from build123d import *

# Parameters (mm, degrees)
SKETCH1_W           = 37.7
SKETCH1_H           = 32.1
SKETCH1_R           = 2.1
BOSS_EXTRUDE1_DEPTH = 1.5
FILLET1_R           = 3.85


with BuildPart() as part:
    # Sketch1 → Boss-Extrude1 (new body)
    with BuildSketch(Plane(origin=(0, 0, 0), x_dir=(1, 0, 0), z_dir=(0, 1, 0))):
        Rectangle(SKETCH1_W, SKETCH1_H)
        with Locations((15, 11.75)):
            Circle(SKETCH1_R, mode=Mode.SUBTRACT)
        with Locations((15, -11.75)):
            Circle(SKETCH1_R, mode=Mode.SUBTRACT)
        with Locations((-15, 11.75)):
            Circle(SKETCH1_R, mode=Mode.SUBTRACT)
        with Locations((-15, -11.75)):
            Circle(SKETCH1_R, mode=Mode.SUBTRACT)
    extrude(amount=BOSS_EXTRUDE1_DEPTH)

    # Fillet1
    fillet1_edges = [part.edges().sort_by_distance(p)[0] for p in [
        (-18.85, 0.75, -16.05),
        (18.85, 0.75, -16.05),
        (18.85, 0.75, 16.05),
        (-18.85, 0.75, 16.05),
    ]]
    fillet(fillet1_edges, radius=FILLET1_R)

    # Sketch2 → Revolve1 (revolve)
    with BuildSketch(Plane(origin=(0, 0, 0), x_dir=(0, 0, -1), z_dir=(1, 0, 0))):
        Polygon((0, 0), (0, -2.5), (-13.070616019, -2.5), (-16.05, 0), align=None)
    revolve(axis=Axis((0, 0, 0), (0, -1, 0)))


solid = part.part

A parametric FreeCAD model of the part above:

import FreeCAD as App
import Part
import Sketcher

V = App.Vector
Q = App.Units.Quantity


def edges_at(feature, points):
    """Names of the edges that pass closest to the given points."""
    edges = feature.Shape.Edges
    near = lambda p: min(range(len(edges)), key=lambda i: edges[i].distToShape(Part.Vertex(*p))[0])
    return sorted({f"Edge{near(p) + 1}" for p in points})

doc = App.newDocument("Part")
body = doc.addObject("PartDesign::Body", "Body")

sketch1 = body.newObject("Sketcher::SketchObject", "Sketch")
sketch1.AttachmentSupport = (doc.getObject("XZ_Plane"), [""])
sketch1.MapMode = "FlatFace"
sketch1.addGeometry(Part.LineSegment(V(-18.9, -16.1, 0), V(-18.9, 16.1, 0)), False)
sketch1.addGeometry(Part.LineSegment(V(-18.9, 16.1, 0), V(18.9, 16.1, 0)), False)
sketch1.addGeometry(Part.LineSegment(V(18.9, 16.1, 0), V(18.9, -16.1, 0)), False)
sketch1.addGeometry(Part.LineSegment(V(18.9, -16.1, 0), V(-18.9, -16.1, 0)), False)
sketch1.addGeometry(Part.Circle(V(-15, 11.8, 0), V(0, 0, 1), 2.1), False)
sketch1.addGeometry(Part.Circle(V(15, 11.8, 0), V(0, 0, 1), 2.1), False)
sketch1.addGeometry(Part.Circle(V(-15, -11.8, 0), V(0, 0, 1), 2.1), False)
sketch1.addGeometry(Part.Circle(V(15, -11.8, 0), V(0, 0, 1), 2.1), False)
sketch1.addConstraint(Sketcher.Constraint("Coincident", 0, 2, 1, 1))
sketch1.addConstraint(Sketcher.Constraint("Coincident", 1, 2, 2, 1))
sketch1.addConstraint(Sketcher.Constraint("Coincident", 2, 2, 3, 1))
sketch1.addConstraint(Sketcher.Constraint("Coincident", 3, 2, 0, 1))
sketch1.addConstraint(Sketcher.Constraint("Vertical", 0))
sketch1.addConstraint(Sketcher.Constraint("Horizontal", 1))
sketch1.addConstraint(Sketcher.Constraint("Vertical", 2))
sketch1.addConstraint(Sketcher.Constraint("Horizontal", 3))
sketch1.addConstraint(Sketcher.Constraint("Equal", 4, 5))
sketch1.addConstraint(Sketcher.Constraint("Equal", 5, 6))
sketch1.addConstraint(Sketcher.Constraint("Equal", 6, 7))
sketch1.addConstraint(Sketcher.Constraint("Symmetric", 5, 3, 6, 3, -1, 1))
sketch1.addConstraint(Sketcher.Constraint("Symmetric", 4, 3, 7, 3, -1, 1))
sketch1.addConstraint(Sketcher.Constraint("Symmetric", 0, 2, 2, 2, -1, 1))
sketch1.addConstraint(Sketcher.Constraint("Symmetric", 4, 3, 5, 3, -2))
sketch1.addConstraint(Sketcher.Constraint("Diameter", 4, Q("4.2 mm")))
sketch1.addConstraint(Sketcher.Constraint("DistanceX", 1, 1, 1, 2, Q("37.7 mm")))
sketch1.addConstraint(Sketcher.Constraint("DistanceY", 0, 1, 0, 2, Q("32.1 mm")))
sketch1.addConstraint(Sketcher.Constraint("DistanceX", 4, 3, -1, 1, Q("15 mm")))
sketch1.addConstraint(Sketcher.Constraint("DistanceY", 6, 3, 4, 3, Q("23.5 mm")))
pad1 = body.newObject("PartDesign::Pad", "Pad")
pad1.Profile = sketch1
pad1.Length = 1.5
pad1.Reversed = True
doc.recompute()

fillet = body.newObject("PartDesign::Fillet", "Fillet")
fillet.Base = (pad1, edges_at(pad1, [
    (-18.85, 0.75, -16.05),
    (18.85, 0.75, -16.05),
    (18.85, 0.75, 16.05),
    (-18.85, 0.75, 16.05),
]))
fillet.Radius = 3.85

sketch2 = body.newObject("Sketcher::SketchObject", "Sketch001")
sketch2.AttachmentSupport = (doc.getObject("YZ_Plane"), [""])
sketch2.MapMode = "FlatFace"
sketch2.addGeometry(Part.LineSegment(V(-2.5, 0, 0), V(0, 0, 0)), False)
sketch2.addGeometry(Part.LineSegment(V(0, 0, 0), V(0, 16.1, 0)), False)
sketch2.addGeometry(Part.LineSegment(V(0, 16.1, 0), V(-2.5, 13.1, 0)), False)
sketch2.addGeometry(Part.LineSegment(V(-2.5, 13.1, 0), V(-2.5, 0, 0)), False)
sketch2.addConstraint(Sketcher.Constraint("Coincident", 0, 2, 1, 1))
sketch2.addConstraint(Sketcher.Constraint("Coincident", 1, 2, 2, 1))
sketch2.addConstraint(Sketcher.Constraint("Coincident", 2, 2, 3, 1))
sketch2.addConstraint(Sketcher.Constraint("Coincident", 3, 2, 0, 1))
sketch2.addConstraint(Sketcher.Constraint("Horizontal", 0))
sketch2.addConstraint(Sketcher.Constraint("Vertical", 1))
sketch2.addConstraint(Sketcher.Constraint("Vertical", 3))
sketch2.addConstraint(Sketcher.Constraint("Coincident", 0, 2, -1, 1))
sketch2.addConstraint(Sketcher.Constraint("Angle", 2, Q("-130 deg")))
sketch2.addConstraint(Sketcher.Constraint("DistanceX", 0, 1, 0, 2, Q("2.5 mm")))
sketch2.addConstraint(Sketcher.Constraint("DistanceY", 1, 1, 1, 2, Q("16.05 mm")))
revolution = body.newObject("PartDesign::Revolution", "Revolution")
revolution.Profile = sketch2
revolution.ReferenceAxis = (sketch2, ["H_Axis"])
revolution.Angle = 360

doc.recompute()
